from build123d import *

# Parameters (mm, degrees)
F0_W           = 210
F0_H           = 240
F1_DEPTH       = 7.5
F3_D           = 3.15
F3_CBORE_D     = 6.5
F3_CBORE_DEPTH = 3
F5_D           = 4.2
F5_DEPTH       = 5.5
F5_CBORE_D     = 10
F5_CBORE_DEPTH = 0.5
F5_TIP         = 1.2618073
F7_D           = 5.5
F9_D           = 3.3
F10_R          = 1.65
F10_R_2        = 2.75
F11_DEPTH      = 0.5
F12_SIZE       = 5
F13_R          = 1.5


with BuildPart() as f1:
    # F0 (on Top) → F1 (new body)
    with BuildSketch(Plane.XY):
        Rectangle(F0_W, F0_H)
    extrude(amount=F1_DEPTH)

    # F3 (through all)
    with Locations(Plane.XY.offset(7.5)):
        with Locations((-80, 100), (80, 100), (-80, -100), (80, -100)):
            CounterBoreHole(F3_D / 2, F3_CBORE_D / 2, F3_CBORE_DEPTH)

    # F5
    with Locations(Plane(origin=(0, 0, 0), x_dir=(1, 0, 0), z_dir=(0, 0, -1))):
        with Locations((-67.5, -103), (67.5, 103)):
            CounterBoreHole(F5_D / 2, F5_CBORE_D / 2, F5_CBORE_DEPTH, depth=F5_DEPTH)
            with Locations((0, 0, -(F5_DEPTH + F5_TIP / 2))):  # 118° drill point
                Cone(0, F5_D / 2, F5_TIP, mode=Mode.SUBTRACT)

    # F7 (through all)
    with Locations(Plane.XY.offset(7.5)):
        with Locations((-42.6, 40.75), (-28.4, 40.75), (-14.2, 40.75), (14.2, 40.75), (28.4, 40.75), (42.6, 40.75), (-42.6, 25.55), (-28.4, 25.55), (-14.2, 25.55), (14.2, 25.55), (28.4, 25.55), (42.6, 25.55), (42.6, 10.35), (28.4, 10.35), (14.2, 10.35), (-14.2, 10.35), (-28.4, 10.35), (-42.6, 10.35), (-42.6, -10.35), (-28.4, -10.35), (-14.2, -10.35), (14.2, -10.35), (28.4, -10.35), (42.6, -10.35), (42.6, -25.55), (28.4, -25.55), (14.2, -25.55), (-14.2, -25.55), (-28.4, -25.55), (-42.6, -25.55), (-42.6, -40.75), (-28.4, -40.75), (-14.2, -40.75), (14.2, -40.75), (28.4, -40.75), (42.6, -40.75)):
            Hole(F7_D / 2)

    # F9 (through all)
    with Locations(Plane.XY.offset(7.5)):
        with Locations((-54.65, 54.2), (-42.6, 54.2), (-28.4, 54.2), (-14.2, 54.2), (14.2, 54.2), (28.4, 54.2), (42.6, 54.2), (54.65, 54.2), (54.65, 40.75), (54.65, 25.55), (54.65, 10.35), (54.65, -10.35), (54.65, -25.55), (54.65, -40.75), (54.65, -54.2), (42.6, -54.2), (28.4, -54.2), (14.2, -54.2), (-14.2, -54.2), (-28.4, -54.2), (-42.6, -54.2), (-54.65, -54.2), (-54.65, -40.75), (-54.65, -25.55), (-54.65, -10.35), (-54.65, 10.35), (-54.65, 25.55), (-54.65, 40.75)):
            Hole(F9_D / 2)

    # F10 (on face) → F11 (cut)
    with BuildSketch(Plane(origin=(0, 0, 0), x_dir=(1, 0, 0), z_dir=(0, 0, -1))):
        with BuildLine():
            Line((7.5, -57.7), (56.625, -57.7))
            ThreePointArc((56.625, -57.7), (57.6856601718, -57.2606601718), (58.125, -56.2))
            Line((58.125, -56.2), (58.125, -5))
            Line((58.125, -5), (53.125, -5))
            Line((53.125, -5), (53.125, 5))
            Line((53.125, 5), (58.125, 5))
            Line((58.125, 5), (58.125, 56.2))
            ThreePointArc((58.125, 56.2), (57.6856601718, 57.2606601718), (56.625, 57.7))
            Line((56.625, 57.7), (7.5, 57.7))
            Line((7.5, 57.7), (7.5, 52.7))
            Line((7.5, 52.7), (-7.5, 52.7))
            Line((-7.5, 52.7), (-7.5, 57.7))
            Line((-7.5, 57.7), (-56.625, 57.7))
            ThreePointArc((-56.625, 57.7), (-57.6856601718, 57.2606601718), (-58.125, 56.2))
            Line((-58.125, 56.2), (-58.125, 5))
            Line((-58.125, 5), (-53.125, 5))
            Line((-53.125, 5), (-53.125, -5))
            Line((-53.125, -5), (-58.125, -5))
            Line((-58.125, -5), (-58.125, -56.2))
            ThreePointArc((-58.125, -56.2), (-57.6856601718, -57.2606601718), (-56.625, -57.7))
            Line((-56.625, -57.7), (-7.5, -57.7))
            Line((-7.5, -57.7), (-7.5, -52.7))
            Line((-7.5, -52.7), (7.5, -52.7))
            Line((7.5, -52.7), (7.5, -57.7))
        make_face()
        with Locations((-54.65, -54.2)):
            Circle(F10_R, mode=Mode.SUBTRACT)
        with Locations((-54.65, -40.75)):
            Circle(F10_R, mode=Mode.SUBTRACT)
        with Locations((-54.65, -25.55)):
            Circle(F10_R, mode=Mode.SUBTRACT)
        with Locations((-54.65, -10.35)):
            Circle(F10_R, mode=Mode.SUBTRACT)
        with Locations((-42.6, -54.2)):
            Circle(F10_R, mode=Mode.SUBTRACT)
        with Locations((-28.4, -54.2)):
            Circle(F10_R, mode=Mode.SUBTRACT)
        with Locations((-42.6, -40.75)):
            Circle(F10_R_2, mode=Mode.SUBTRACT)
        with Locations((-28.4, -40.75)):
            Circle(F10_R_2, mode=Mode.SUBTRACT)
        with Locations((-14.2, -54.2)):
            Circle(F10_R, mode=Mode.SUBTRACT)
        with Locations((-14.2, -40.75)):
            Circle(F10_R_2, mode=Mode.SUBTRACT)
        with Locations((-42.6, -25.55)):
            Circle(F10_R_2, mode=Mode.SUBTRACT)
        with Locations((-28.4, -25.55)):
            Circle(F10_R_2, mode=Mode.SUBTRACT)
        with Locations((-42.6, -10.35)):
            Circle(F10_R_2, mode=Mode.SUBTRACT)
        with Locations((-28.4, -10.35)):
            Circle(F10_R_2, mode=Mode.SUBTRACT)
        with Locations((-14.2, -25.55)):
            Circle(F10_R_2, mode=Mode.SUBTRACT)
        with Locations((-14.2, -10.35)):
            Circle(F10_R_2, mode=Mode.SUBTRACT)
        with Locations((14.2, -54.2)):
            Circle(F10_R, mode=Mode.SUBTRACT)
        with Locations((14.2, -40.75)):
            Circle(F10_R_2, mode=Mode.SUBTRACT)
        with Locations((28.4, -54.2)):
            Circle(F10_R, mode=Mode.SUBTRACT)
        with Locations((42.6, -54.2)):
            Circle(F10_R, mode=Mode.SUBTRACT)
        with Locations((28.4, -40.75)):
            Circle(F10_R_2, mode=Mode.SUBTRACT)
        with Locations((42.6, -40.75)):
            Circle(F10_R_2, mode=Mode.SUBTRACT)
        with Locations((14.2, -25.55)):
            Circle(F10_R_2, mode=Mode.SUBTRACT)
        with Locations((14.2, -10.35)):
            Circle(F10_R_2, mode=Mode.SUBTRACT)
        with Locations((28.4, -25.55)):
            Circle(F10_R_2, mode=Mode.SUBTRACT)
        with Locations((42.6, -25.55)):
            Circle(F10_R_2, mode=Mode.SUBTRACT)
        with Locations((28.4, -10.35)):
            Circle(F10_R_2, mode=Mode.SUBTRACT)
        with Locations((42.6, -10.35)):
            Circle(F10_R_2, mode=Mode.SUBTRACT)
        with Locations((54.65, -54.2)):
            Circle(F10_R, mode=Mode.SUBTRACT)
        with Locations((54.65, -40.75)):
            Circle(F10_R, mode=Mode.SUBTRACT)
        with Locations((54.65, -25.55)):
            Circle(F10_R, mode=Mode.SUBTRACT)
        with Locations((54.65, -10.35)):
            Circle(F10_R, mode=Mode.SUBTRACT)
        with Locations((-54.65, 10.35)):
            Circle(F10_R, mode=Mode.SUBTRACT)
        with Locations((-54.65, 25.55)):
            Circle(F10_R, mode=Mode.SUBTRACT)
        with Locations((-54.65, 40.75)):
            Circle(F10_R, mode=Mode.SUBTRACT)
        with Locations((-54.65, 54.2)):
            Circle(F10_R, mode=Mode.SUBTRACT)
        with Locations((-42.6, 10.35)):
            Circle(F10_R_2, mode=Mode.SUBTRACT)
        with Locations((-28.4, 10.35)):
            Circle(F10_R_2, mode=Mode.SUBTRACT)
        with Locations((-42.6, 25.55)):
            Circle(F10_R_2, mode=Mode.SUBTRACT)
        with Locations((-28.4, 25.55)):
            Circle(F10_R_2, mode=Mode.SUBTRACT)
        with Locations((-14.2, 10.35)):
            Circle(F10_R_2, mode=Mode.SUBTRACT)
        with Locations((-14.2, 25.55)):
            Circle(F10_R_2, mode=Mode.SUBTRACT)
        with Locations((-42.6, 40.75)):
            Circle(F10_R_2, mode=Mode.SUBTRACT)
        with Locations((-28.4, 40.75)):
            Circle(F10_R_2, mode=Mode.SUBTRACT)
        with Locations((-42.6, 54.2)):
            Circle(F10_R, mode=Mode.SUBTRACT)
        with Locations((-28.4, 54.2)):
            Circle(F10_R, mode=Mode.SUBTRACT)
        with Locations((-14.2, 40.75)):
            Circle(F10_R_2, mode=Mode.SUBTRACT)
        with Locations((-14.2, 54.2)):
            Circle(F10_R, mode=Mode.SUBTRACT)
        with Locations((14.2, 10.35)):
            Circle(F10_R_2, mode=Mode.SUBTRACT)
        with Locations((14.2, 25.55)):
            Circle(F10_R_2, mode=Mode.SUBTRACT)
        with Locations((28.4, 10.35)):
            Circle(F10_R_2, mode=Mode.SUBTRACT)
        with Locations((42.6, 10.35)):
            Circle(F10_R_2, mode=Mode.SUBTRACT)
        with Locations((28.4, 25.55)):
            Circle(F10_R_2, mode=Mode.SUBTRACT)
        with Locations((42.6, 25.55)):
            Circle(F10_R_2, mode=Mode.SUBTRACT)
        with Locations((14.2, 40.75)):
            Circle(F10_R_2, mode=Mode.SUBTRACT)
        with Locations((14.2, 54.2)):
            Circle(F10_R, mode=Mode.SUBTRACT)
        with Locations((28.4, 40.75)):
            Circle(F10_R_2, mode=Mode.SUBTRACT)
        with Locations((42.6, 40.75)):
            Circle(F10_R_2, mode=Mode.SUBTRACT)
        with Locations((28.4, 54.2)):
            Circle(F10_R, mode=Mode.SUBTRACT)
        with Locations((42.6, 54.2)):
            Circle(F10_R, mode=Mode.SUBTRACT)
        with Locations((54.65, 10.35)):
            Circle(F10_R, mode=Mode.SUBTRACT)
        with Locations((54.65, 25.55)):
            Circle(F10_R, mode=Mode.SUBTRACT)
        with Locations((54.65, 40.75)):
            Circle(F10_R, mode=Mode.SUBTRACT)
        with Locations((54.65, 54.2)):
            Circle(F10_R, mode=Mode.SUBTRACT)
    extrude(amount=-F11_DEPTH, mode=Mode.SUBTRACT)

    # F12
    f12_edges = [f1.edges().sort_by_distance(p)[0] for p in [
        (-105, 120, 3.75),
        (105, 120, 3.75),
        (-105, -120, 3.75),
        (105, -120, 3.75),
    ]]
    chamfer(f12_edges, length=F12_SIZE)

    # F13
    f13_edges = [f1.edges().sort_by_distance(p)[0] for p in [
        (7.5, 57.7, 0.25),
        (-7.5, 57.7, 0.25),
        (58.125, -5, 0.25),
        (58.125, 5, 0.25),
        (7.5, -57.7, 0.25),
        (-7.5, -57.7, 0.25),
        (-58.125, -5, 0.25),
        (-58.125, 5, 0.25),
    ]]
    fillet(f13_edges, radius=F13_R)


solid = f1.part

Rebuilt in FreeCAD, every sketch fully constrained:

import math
import FreeCAD as App
import Part
import Sketcher
Q = App.Units.Quantity


def edges_at(feature, points):
    """Names of the edges that pass closest to the given points."""
    edges = feature.Shape.Edges
    near = lambda p: min(range(len(edges)), key=lambda i: edges[i].distToShape(Part.Vertex(*p))[0])
    return sorted({f"Edge{near(p) + 1}" for p in points})

doc = App.newDocument("Part")
body = doc.addObject("PartDesign::Body", "Body")

# Sketch on XY plane
sketch1 = body.newObject("Sketcher::SketchObject", "Sketch")
sketch1.AttachmentSupport = (doc.getObject("XY_Plane"), [""])
sketch1.MapMode = "FlatFace"
sketch1.addGeometry([
    Part.LineSegment(App.Vector(-105, 120, 0), App.Vector(-105, -120, 0)),
    Part.LineSegment(App.Vector(-105, -120, 0), App.Vector(105, -120, 0)),
    Part.LineSegment(App.Vector(105, -120, 0), App.Vector(105, 120, 0)),
    Part.LineSegment(App.Vector(105, 120, 0), App.Vector(-105, 120, 0)),
], False)
sketch1.addConstraint([
    Sketcher.Constraint("Coincident", 0, 2, 1, 1),
    Sketcher.Constraint("Coincident", 1, 2, 2, 1),
    Sketcher.Constraint("Coincident", 2, 2, 3, 1),
    Sketcher.Constraint("Coincident", 3, 2, 0, 1),
    Sketcher.Constraint("Vertical", 0),
    Sketcher.Constraint("Horizontal", 1),
    Sketcher.Constraint("Vertical", 2),
    Sketcher.Constraint("Horizontal", 3),
    Sketcher.Constraint("Symmetric", 0, 2, 2, 2, -1, 1),
    Sketcher.Constraint("DistanceX", 1, 1, 1, 2, Q("210 mm")),
    Sketcher.Constraint("DistanceY", 0, 2, 0, 1, Q("240 mm")),
])
pad1 = body.newObject("PartDesign::Pad", "Pad")
pad1.Profile = sketch1
pad1.Length = 7.5

# Sketch on XY plane
sketch2 = body.newObject("Sketcher::SketchObject", "Sketch001")
sketch2.AttachmentSupport = (doc.getObject("XY_Plane"), [""])
sketch2.MapMode = "FlatFace"
sketch2.AttachmentOffset = App.Placement(App.Vector(0, 0, 7.5), App.Rotation())
sketch2.addGeometry([
    Part.Circle(App.Vector(-80, 100, 0), App.Vector(0, 0, 1), 1.6),
    Part.Circle(App.Vector(80, 100, 0), App.Vector(0, 0, 1), 1.6),
    Part.Circle(App.Vector(-80, -100, 0), App.Vector(0, 0, 1), 1.6),
    Part.Circle(App.Vector(80, -100, 0), App.Vector(0, 0, 1), 1.6),
], False)
sketch2.addConstraint([
    Sketcher.Constraint("Equal", 0, 1),
    Sketcher.Constraint("Equal", 1, 2),
    Sketcher.Constraint("Equal", 2, 3),
    Sketcher.Constraint("Symmetric", 1, 3, 2, 3, -1, 1),
    Sketcher.Constraint("Symmetric", 0, 3, 3, 3, -1, 1),
    Sketcher.Constraint("Symmetric", 0, 3, 1, 3, -2),
    Sketcher.Constraint("Diameter", 0, Q("3.15 mm")),
    Sketcher.Constraint("DistanceX", 0, 3, -1, 1, Q("80 mm")),
    Sketcher.Constraint("DistanceY", -1, 1, 0, 3, Q("100 mm")),
])
doc.recompute()
hole = body.newObject("PartDesign::Hole", "Hole")
hole.Profile = sketch2
hole.ThreadType = "None"
hole.Diameter = 3.15
hole.DepthType = "ThroughAll"
hole.HoleCutType = "Counterbore"
hole.HoleCutDiameter = 6.5
hole.HoleCutDepth = 3

# Sketch on XY plane
sketch3 = body.newObject("Sketcher::SketchObject", "Sketch002")
sketch3.AttachmentSupport = (doc.getObject("XY_Plane"), [""])
sketch3.MapMode = "FlatFace"
sketch3.addGeometry([
    Part.Circle(App.Vector(-67.5, 103, 0), App.Vector(0, 0, 1), 2.1),
    Part.Circle(App.Vector(67.5, -103, 0), App.Vector(0, 0, 1), 2.1),
], False)
sketch3.addConstraint([
    Sketcher.Constraint("Equal", 0, 1),
    Sketcher.Constraint("Symmetric", 0, 3, 1, 3, -1, 1),
    Sketcher.Constraint("Diameter", 0, Q("4.2 mm")),
    Sketcher.Constraint("DistanceY", -1, 1, 0, 3, Q("103 mm")),
    Sketcher.Constraint("DistanceX", 0, 3, 1, 3, Q("135 mm")),
])
doc.recompute()
hole2 = body.newObject("PartDesign::Hole", "Hole001")
hole2.Profile = sketch3
hole2.ThreadType = "None"
hole2.Diameter = 4.2
hole2.DepthType = "Dimension"
hole2.Depth = 5.5
hole2.DrillPoint = "Angled"
hole2.DrillPointAngle = 118
hole2.HoleCutType = "Counterbore"
hole2.HoleCutDiameter = 10
hole2.HoleCutDepth = 0.5
hole2.Reversed = True

# Sketch on XY plane
sketch4 = body.newObject("Sketcher::SketchObject", "Sketch003")
sketch4.AttachmentSupport = (doc.getObject("XY_Plane"), [""])
sketch4.MapMode = "FlatFace"
sketch4.AttachmentOffset = App.Placement(App.Vector(0, 0, 7.5), App.Rotation())
sketch4.addGeometry([
    Part.Circle(App.Vector(-42.6, 40.8, 0), App.Vector(0, 0, 1), 2.8),  # 0
    Part.Circle(App.Vector(-28.4, 40.8, 0), App.Vector(0, 0, 1), 2.8),  # 1
    Part.Circle(App.Vector(-14.2, 40.8, 0), App.Vector(0, 0, 1), 2.8),  # 2
    Part.Circle(App.Vector(14.2, 40.8, 0), App.Vector(0, 0, 1), 2.8),  # 3
    Part.Circle(App.Vector(28.4, 40.8, 0), App.Vector(0, 0, 1), 2.8),  # 4
    Part.Circle(App.Vector(42.6, 40.8, 0), App.Vector(0, 0, 1), 2.8),  # 5
    Part.Circle(App.Vector(-42.6, 25.6, 0), App.Vector(0, 0, 1), 2.8),  # 6
    Part.Circle(App.Vector(-28.4, 25.6, 0), App.Vector(0, 0, 1), 2.8),  # 7
    Part.Circle(App.Vector(-14.2, 25.6, 0), App.Vector(0, 0, 1), 2.8),  # 8
    Part.Circle(App.Vector(14.2, 25.6, 0), App.Vector(0, 0, 1), 2.8),  # 9
    Part.Circle(App.Vector(28.4, 25.6, 0), App.Vector(0, 0, 1), 2.8),  # 10
    Part.Circle(App.Vector(42.6, 25.6, 0), App.Vector(0, 0, 1), 2.8),  # 11
    Part.Circle(App.Vector(42.6, 10.3, 0), App.Vector(0, 0, 1), 2.8),  # 12
    Part.Circle(App.Vector(28.4, 10.3, 0), App.Vector(0, 0, 1), 2.8),  # 13
    Part.Circle(App.Vector(14.2, 10.3, 0), App.Vector(0, 0, 1), 2.8),  # 14
    Part.Circle(App.Vector(-14.2, 10.3, 0), App.Vector(0, 0, 1), 2.8),  # 15
    Part.Circle(App.Vector(-28.4, 10.3, 0), App.Vector(0, 0, 1), 2.8),  # 16
    Part.Circle(App.Vector(-42.6, 10.3, 0), App.Vector(0, 0, 1), 2.8),  # 17
    Part.Circle(App.Vector(-42.6, -10.3, 0), App.Vector(0, 0, 1), 2.8),  # 18
    Part.Circle(App.Vector(-28.4, -10.3, 0), App.Vector(0, 0, 1), 2.8),  # 19
    Part.Circle(App.Vector(-14.2, -10.3, 0), App.Vector(0, 0, 1), 2.8),  # 20
    Part.Circle(App.Vector(14.2, -10.3, 0), App.Vector(0, 0, 1), 2.8),  # 21
    Part.Circle(App.Vector(28.4, -10.3, 0), App.Vector(0, 0, 1), 2.8),  # 22
    Part.Circle(App.Vector(42.6, -10.3, 0), App.Vector(0, 0, 1), 2.8),  # 23
    Part.Circle(App.Vector(42.6, -25.6, 0), App.Vector(0, 0, 1), 2.8),  # 24
    Part.Circle(App.Vector(28.4, -25.6, 0), App.Vector(0, 0, 1), 2.8),  # 25
    Part.Circle(App.Vector(14.2, -25.6, 0), App.Vector(0, 0, 1), 2.8),  # 26
    Part.Circle(App.Vector(-14.2, -25.6, 0), App.Vector(0, 0, 1), 2.8),  # 27
    Part.Circle(App.Vector(-28.4, -25.6, 0), App.Vector(0, 0, 1), 2.8),  # 28
    Part.Circle(App.Vector(-42.6, -25.6, 0), App.Vector(0, 0, 1), 2.8),  # 29
    Part.Circle(App.Vector(-42.6, -40.8, 0), App.Vector(0, 0, 1), 2.8),  # 30
    Part.Circle(App.Vector(-28.4, -40.8, 0), App.Vector(0, 0, 1), 2.8),  # 31
    Part.Circle(App.Vector(-14.2, -40.8, 0), App.Vector(0, 0, 1), 2.8),  # 32
    Part.Circle(App.Vector(14.2, -40.8, 0), App.Vector(0, 0, 1), 2.8),  # 33
    Part.Circle(App.Vector(28.4, -40.8, 0), App.Vector(0, 0, 1), 2.8),  # 34
    Part.Circle(App.Vector(42.6, -40.8, 0), App.Vector(0, 0, 1), 2.8),  # 35
], False)
sketch4.addConstraint([
    Sketcher.Constraint("Equal", 0, 1),
    Sketcher.Constraint("Equal", 1, 2),
    Sketcher.Constraint("Equal", 2, 3),
    Sketcher.Constraint("Equal", 3, 4),
    Sketcher.Constraint("Equal", 4, 5),
    Sketcher.Constraint("Equal", 5, 6),
    Sketcher.Constraint("Equal", 6, 7),
    Sketcher.Constraint("Equal", 7, 8),
    Sketcher.Constraint("Equal", 8, 9),
    Sketcher.Constraint("Equal", 9, 10),
    Sketcher.Constraint("Equal", 10, 11),
    Sketcher.Constraint("Equal", 11, 12),
    Sketcher.Constraint("Equal", 12, 13),
    Sketcher.Constraint("Equal", 13, 14),
    Sketcher.Constraint("Equal", 14, 15),
    Sketcher.Constraint("Equal", 15, 16),
    Sketcher.Constraint("Equal", 16, 17),
    Sketcher.Constraint("Equal", 17, 18),
    Sketcher.Constraint("Equal", 18, 19),
    Sketcher.Constraint("Equal", 19, 20),
    Sketcher.Constraint("Equal", 20, 21),
    Sketcher.Constraint("Equal", 21, 22),
    Sketcher.Constraint("Equal", 22, 23),
    Sketcher.Constraint("Equal", 23, 24),
    Sketcher.Constraint("Equal", 24, 25),
    Sketcher.Constraint("Equal", 25, 26),
    Sketcher.Constraint("Equal", 26, 27),
    Sketcher.Constraint("Equal", 27, 28),
    Sketcher.Constraint("Equal", 28, 29),
    Sketcher.Constraint("Equal", 29, 30),
    Sketcher.Constraint("Equal", 30, 31),
    Sketcher.Constraint("Equal", 31, 32),
    Sketcher.Constraint("Equal", 32, 33),
    Sketcher.Constraint("Equal", 33, 34),
    Sketcher.Constraint("Equal", 34, 35),
    Sketcher.Constraint("Symmetric", 12, 3, 18, 3, -1, 1),
    Sketcher.Constraint("Symmetric", 13, 3, 19, 3, -1, 1),
    Sketcher.Constraint("Symmetric", 14, 3, 20, 3, -1, 1),
    Sketcher.Constraint("Symmetric", 15, 3, 21, 3, -1, 1),
    Sketcher.Constraint("Symmetric", 16, 3, 22, 3, -1, 1),
    Sketcher.Constraint("Symmetric", 17, 3, 23, 3, -1, 1),
    Sketcher.Constraint("Symmetric", 6, 3, 24, 3, -1, 1),
    Sketcher.Constraint("Symmetric", 7, 3, 25, 3, -1, 1),
    Sketcher.Constraint("Symmetric", 8, 3, 26, 3, -1, 1),
    Sketcher.Constraint("Symmetric", 9, 3, 27, 3, -1, 1),
    Sketcher.Constraint("Symmetric", 10, 3, 28, 3, -1, 1),
    Sketcher.Constraint("Symmetric", 11, 3, 29, 3, -1, 1),
    Sketcher.Constraint("Symmetric", 5, 3, 30, 3, -1, 1),
    Sketcher.Constraint("Symmetric", 4, 3, 31, 3, -1, 1),
    Sketcher.Constraint("Symmetric", 3, 3, 32, 3, -1, 1),
    Sketcher.Constraint("Symmetric", 2, 3, 33, 3, -1, 1),
    Sketcher.Constraint("Symmetric", 1, 3, 34, 3, -1, 1),
    Sketcher.Constraint("Symmetric", 0, 3, 35, 3, -1, 1),
    Sketcher.Constraint("Symmetric", 2, 3, 3, 3, -2),
    Sketcher.Constraint("Symmetric", 1, 3, 4, 3, -2),
    Sketcher.Constraint("Symmetric", 0, 3, 5, 3, -2),
    Sketcher.Constraint("Symmetric", 8, 3, 9, 3, -2),
    Sketcher.Constraint("Symmetric", 7, 3, 10, 3, -2),
    Sketcher.Constraint("Symmetric", 6, 3, 11, 3, -2),
    Sketcher.Constraint("Symmetric", 14, 3, 15, 3, -2),
    Sketcher.Constraint("Symmetric", 13, 3, 16, 3, -2),
    Sketcher.Constraint("Symmetric", 12, 3, 17, 3, -2),
    Sketcher.Constraint("Horizontal", 0, 3, 1, 3),
    Sketcher.Constraint("Horizontal", 1, 3, 2, 3),
    Sketcher.Constraint("Horizontal", 6, 3, 7, 3),
    Sketcher.Constraint("Horizontal", 7, 3, 8, 3),
    Sketcher.Constraint("Horizontal", 12, 3, 13, 3),
    Sketcher.Constraint("Horizontal", 13, 3, 14, 3),
    Sketcher.Constraint("Vertical", 0, 3, 6, 3),
    Sketcher.Constraint("Vertical", 1, 3, 7, 3),
    Sketcher.Constraint("Vertical", 2, 3, 8, 3),
    Sketcher.Constraint("Vertical", 11, 3, 12, 3),
    Sketcher.Constraint("Vertical", 10, 3, 13, 3),
    Sketcher.Constraint("Vertical", 9, 3, 14, 3),
    Sketcher.Constraint("Diameter", 0, Q("5.5 mm")),
    Sketcher.Constraint("DistanceX", 0, 3, 4, 3, Q("71 mm")),
    Sketcher.Constraint("DistanceX", 0, 3, -1, 1, Q("42.6 mm")),
    Sketcher.Constraint("DistanceX", 2, 3, -1, 1, Q("14.2 mm")),
    Sketcher.Constraint("DistanceY", 6, 3, 0, 3, Q("15.2 mm")),
    Sketcher.Constraint("DistanceY", 12, 3, 11, 3, Q("15.2 mm")),
    Sketcher.Constraint("DistanceY", 18, 3, 17, 3, Q("20.7 mm")),
])
doc.recompute()
hole3 = body.newObject("PartDesign::Hole", "Hole002")
hole3.Profile = sketch4
hole3.ThreadType = "None"
hole3.Diameter = 5.5
hole3.DepthType = "ThroughAll"

# Sketch on XY plane
sketch5 = body.newObject("Sketcher::SketchObject", "Sketch004")
sketch5.AttachmentSupport = (doc.getObject("XY_Plane"), [""])
sketch5.MapMode = "FlatFace"
sketch5.AttachmentOffset = App.Placement(App.Vector(0, 0, 7.5), App.Rotation())
sketch5.addGeometry([
    Part.Circle(App.Vector(-54.6, 54.2, 0), App.Vector(0, 0, 1), 1.6),  # 0
    Part.Circle(App.Vector(-42.6, 54.2, 0), App.Vector(0, 0, 1), 1.6),  # 1
    Part.Circle(App.Vector(-28.4, 54.2, 0), App.Vector(0, 0, 1), 1.6),  # 2
    Part.Circle(App.Vector(-14.2, 54.2, 0), App.Vector(0, 0, 1), 1.6),  # 3
    Part.Circle(App.Vector(14.2, 54.2, 0), App.Vector(0, 0, 1), 1.6),  # 4
    Part.Circle(App.Vector(28.4, 54.2, 0), App.Vector(0, 0, 1), 1.6),  # 5
    Part.Circle(App.Vector(42.6, 54.2, 0), App.Vector(0, 0, 1), 1.6),  # 6
    Part.Circle(App.Vector(54.6, 54.2, 0), App.Vector(0, 0, 1), 1.6),  # 7
    Part.Circle(App.Vector(54.6, 40.8, 0), App.Vector(0, 0, 1), 1.6),  # 8
    Part.Circle(App.Vector(54.6, 25.6, 0), App.Vector(0, 0, 1), 1.6),  # 9
    Part.Circle(App.Vector(54.6, 10.3, 0), App.Vector(0, 0, 1), 1.6),  # 10
    Part.Circle(App.Vector(54.6, -10.3, 0), App.Vector(0, 0, 1), 1.6),  # 11
    Part.Circle(App.Vector(54.6, -25.6, 0), App.Vector(0, 0, 1), 1.6),  # 12
    Part.Circle(App.Vector(54.6, -40.8, 0), App.Vector(0, 0, 1), 1.6),  # 13
    Part.Circle(App.Vector(54.6, -54.2, 0), App.Vector(0, 0, 1), 1.6),  # 14
    Part.Circle(App.Vector(42.6, -54.2, 0), App.Vector(0, 0, 1), 1.6),  # 15
    Part.Circle(App.Vector(28.4, -54.2, 0), App.Vector(0, 0, 1), 1.6),  # 16
    Part.Circle(App.Vector(14.2, -54.2, 0), App.Vector(0, 0, 1), 1.6),  # 17
    Part.Circle(App.Vector(-14.2, -54.2, 0), App.Vector(0, 0, 1), 1.6),  # 18
    Part.Circle(App.Vector(-28.4, -54.2, 0), App.Vector(0, 0, 1), 1.6),  # 19
    Part.Circle(App.Vector(-42.6, -54.2, 0), App.Vector(0, 0, 1), 1.6),  # 20
    Part.Circle(App.Vector(-54.6, -54.2, 0), App.Vector(0, 0, 1), 1.6),  # 21
    Part.Circle(App.Vector(-54.6, -40.8, 0), App.Vector(0, 0, 1), 1.6),  # 22
    Part.Circle(App.Vector(-54.6, -25.6, 0), App.Vector(0, 0, 1), 1.6),  # 23
    Part.Circle(App.Vector(-54.6, -10.3, 0), App.Vector(0, 0, 1), 1.6),  # 24
    Part.Circle(App.Vector(-54.6, 10.3, 0), App.Vector(0, 0, 1), 1.6),  # 25
    Part.Circle(App.Vector(-54.6, 25.6, 0), App.Vector(0, 0, 1), 1.6),  # 26
    Part.Circle(App.Vector(-54.6, 40.8, 0), App.Vector(0, 0, 1), 1.6),  # 27
], False)
sketch5.addConstraint([
    Sketcher.Constraint("Equal", 0, 1),
    Sketcher.Constraint("Equal", 1, 2),
    Sketcher.Constraint("Equal", 2, 3),
    Sketcher.Constraint("Equal", 3, 4),
    Sketcher.Constraint("Equal", 4, 5),
    Sketcher.Constraint("Equal", 5, 6),
    Sketcher.Constraint("Equal", 6, 7),
    Sketcher.Constraint("Equal", 7, 8),
    Sketcher.Constraint("Equal", 8, 9),
    Sketcher.Constraint("Equal", 9, 10),
    Sketcher.Constraint("Equal", 10, 11),
    Sketcher.Constraint("Equal", 11, 12),
    Sketcher.Constraint("Equal", 12, 13),
    Sketcher.Constraint("Equal", 13, 14),
    Sketcher.Constraint("Equal", 14, 15),
    Sketcher.Constraint("Equal", 15, 16),
    Sketcher.Constraint("Equal", 16, 17),
    Sketcher.Constraint("Equal", 17, 18),
    Sketcher.Constraint("Equal", 18, 19),
    Sketcher.Constraint("Equal", 19, 20),
    Sketcher.Constraint("Equal", 20, 21),
    Sketcher.Constraint("Equal", 21, 22),
    Sketcher.Constraint("Equal", 22, 23),
    Sketcher.Constraint("Equal", 23, 24),
    Sketcher.Constraint("Equal", 24, 25),
    Sketcher.Constraint("Equal", 25, 26),
    Sketcher.Constraint("Equal", 26, 27),
    Sketcher.Constraint("Symmetric", 0, 3, 14, 3, -1, 1),
    Sketcher.Constraint("Symmetric", 1, 3, 15, 3, -1, 1),
    Sketcher.Constraint("Symmetric", 2, 3, 16, 3, -1, 1),
    Sketcher.Constraint("Symmetric", 3, 3, 17, 3, -1, 1),
    Sketcher.Constraint("Symmetric", 4, 3, 18, 3, -1, 1),
    Sketcher.Constraint("Symmetric", 5, 3, 19, 3, -1, 1),
    Sketcher.Constraint("Symmetric", 6, 3, 20, 3, -1, 1),
    Sketcher.Constraint("Symmetric", 7, 3, 21, 3, -1, 1),
    Sketcher.Constraint("Symmetric", 8, 3, 22, 3, -1, 1),
    Sketcher.Constraint("Symmetric", 9, 3, 23, 3, -1, 1),
    Sketcher.Constraint("Symmetric", 10, 3, 24, 3, -1, 1),
    Sketcher.Constraint("Symmetric", 11, 3, 25, 3, -1, 1),
    Sketcher.Constraint("Symmetric", 12, 3, 26, 3, -1, 1),
    Sketcher.Constraint("Symmetric", 13, 3, 27, 3, -1, 1),
    Sketcher.Constraint("Symmetric", 3, 3, 4, 3, -2),
    Sketcher.Constraint("Symmetric", 2, 3, 5, 3, -2),
    Sketcher.Constraint("Symmetric", 1, 3, 6, 3, -2),
    Sketcher.Constraint("Symmetric", 0, 3, 7, 3, -2),
    Sketcher.Constraint("Symmetric", 13, 3, 22, 3, -2),
    Sketcher.Constraint("Symmetric", 12, 3, 23, 3, -2),
    Sketcher.Constraint("Symmetric", 11, 3, 24, 3, -2),
    Sketcher.Constraint("Horizontal", 0, 3, 1, 3),
    Sketcher.Constraint("Horizontal", 1, 3, 2, 3),
    Sketcher.Constraint("Horizontal", 2, 3, 3, 3),
    Sketcher.Constraint("Vertical", 7, 3, 8, 3),
    Sketcher.Constraint("Vertical", 8, 3, 9, 3),
    Sketcher.Constraint("Vertical", 9, 3, 10, 3),
    Sketcher.Constraint("Diameter", 0, Q("3.3 mm")),
    Sketcher.Constraint("DistanceX", 1, 3, 5, 3, Q("71 mm")),
    Sketcher.Constraint("DistanceY", -1, 1, 0, 3, Q("54.2 mm")),
    Sketcher.Constraint("DistanceX", 1, 3, -1, 1, Q("42.6 mm")),
    Sketcher.Constraint("DistanceX", 3, 3, -1, 1, Q("14.2 mm")),
    Sketcher.Constraint("DistanceY", 9, 3, 8, 3, Q("15.2 mm")),
    Sketcher.Constraint("DistanceY", 10, 3, 9, 3, Q("15.2 mm")),
    Sketcher.Constraint("DistanceY", 11, 3, 10, 3, Q("20.7 mm")),
    Sketcher.Constraint("DistanceX", 0, 3, -1, 1, Q("54.65 mm")),
])
doc.recompute()
hole4 = body.newObject("PartDesign::Hole", "Hole003")
hole4.Profile = sketch5
hole4.ThreadType = "None"
hole4.Diameter = 3.3
hole4.DepthType = "ThroughAll"

# Sketch on XY plane
sketch6 = body.newObject("Sketcher::SketchObject", "Sketch005")
sketch6.AttachmentSupport = (doc.getObject("XY_Plane"), [""])
sketch6.MapMode = "FlatFace"
sketch6.addGeometry([
    Part.LineSegment(App.Vector(7.5, 57.7, 0), App.Vector(56.6, 57.7, 0)),  # 0
    Part.ArcOfCircle(Part.Circle(App.Vector(56.6, 56.2, 0), App.Vector(0, 0, 1), 1.5), math.radians(0), math.radians(90)),  # 1
    Part.LineSegment(App.Vector(58.1, 56.2, 0), App.Vector(58.1, 5, 0)),  # 2
    Part.LineSegment(App.Vector(58.1, 5, 0), App.Vector(53.1, 5, 0)),  # 3
    Part.LineSegment(App.Vector(53.1, 5, 0), App.Vector(53.1, -5, 0)),  # 4
    Part.LineSegment(App.Vector(53.1, -5, 0), App.Vector(58.1, -5, 0)),  # 5
    Part.LineSegment(App.Vector(58.1, -5, 0), App.Vector(58.1, -56.2, 0)),  # 6
    Part.ArcOfCircle(Part.Circle(App.Vector(56.6, -56.2, 0), App.Vector(0, 0, 1), 1.5), math.radians(-90), math.radians(0)),  # 7
    Part.LineSegment(App.Vector(56.6, -57.7, 0), App.Vector(7.5, -57.7, 0)),  # 8
    Part.LineSegment(App.Vector(7.5, -57.7, 0), App.Vector(7.5, -52.7, 0)),  # 9
    Part.LineSegment(App.Vector(7.5, -52.7, 0), App.Vector(-7.5, -52.7, 0)),  # 10
    Part.LineSegment(App.Vector(-7.5, -52.7, 0), App.Vector(-7.5, -57.7, 0)),  # 11
    Part.LineSegment(App.Vector(-7.5, -57.7, 0), App.Vector(-56.6, -57.7, 0)),  # 12
    Part.ArcOfCircle(Part.Circle(App.Vector(-56.6, -56.2, 0), App.Vector(0, 0, 1), 1.5), math.radians(180), math.radians(270)),  # 13
    Part.LineSegment(App.Vector(-58.1, -56.2, 0), App.Vector(-58.1, -5, 0)),  # 14
    Part.LineSegment(App.Vector(-58.1, -5, 0), App.Vector(-53.1, -5, 0)),  # 15
    Part.LineSegment(App.Vector(-53.1, -5, 0), App.Vector(-53.1, 5, 0)),  # 16
    Part.LineSegment(App.Vector(-53.1, 5, 0), App.Vector(-58.1, 5, 0)),  # 17
    Part.LineSegment(App.Vector(-58.1, 5, 0), App.Vector(-58.1, 56.2, 0)),  # 18
    Part.ArcOfCircle(Part.Circle(App.Vector(-56.6, 56.2, 0), App.Vector(0, 0, 1), 1.5), math.radians(90), math.radians(180)),  # 19
    Part.LineSegment(App.Vector(-56.6, 57.7, 0), App.Vector(-7.5, 57.7, 0)),  # 20
    Part.LineSegment(App.Vector(-7.5, 57.7, 0), App.Vector(-7.5, 52.7, 0)),  # 21
    Part.LineSegment(App.Vector(-7.5, 52.7, 0), App.Vector(7.5, 52.7, 0)),  # 22
    Part.LineSegment(App.Vector(7.5, 52.7, 0), App.Vector(7.5, 57.7, 0)),  # 23
    Part.Circle(App.Vector(-54.6, 54.2, 0), App.Vector(0, 0, 1), 1.6),  # 24
    Part.Circle(App.Vector(-42.6, 54.2, 0), App.Vector(0, 0, 1), 1.6),  # 25
    Part.Circle(App.Vector(-28.4, 54.2, 0), App.Vector(0, 0, 1), 1.6),  # 26
    Part.Circle(App.Vector(-54.6, 40.8, 0), App.Vector(0, 0, 1), 1.6),  # 27
    Part.Circle(App.Vector(-42.6, 40.8, 0), App.Vector(0, 0, 1), 2.8),  # 28
    Part.Circle(App.Vector(-28.4, 40.8, 0), App.Vector(0, 0, 1), 2.8),  # 29
    Part.Circle(App.Vector(-14.2, 54.2, 0), App.Vector(0, 0, 1), 1.6),  # 30
    Part.Circle(App.Vector(-14.2, 40.8, 0), App.Vector(0, 0, 1), 2.8),  # 31
    Part.Circle(App.Vector(-54.6, 25.6, 0), App.Vector(0, 0, 1), 1.6),  # 32
    Part.Circle(App.Vector(-42.6, 25.6, 0), App.Vector(0, 0, 1), 2.8),  # 33
    Part.Circle(App.Vector(-28.4, 25.6, 0), App.Vector(0, 0, 1), 2.8),  # 34
    Part.Circle(App.Vector(-54.6, 10.3, 0), App.Vector(0, 0, 1), 1.6),  # 35
    Part.Circle(App.Vector(-42.6, 10.3, 0), App.Vector(0, 0, 1), 2.8),  # 36
    Part.Circle(App.Vector(-28.4, 10.3, 0), App.Vector(0, 0, 1), 2.8),  # 37
    Part.Circle(App.Vector(-14.2, 25.6, 0), App.Vector(0, 0, 1), 2.8),  # 38
    Part.Circle(App.Vector(-14.2, 10.3, 0), App.Vector(0, 0, 1), 2.8),  # 39
    Part.Circle(App.Vector(14.2, 54.2, 0), App.Vector(0, 0, 1), 1.6),  # 40
    Part.Circle(App.Vector(14.2, 40.8, 0), App.Vector(0, 0, 1), 2.8),  # 41
    Part.Circle(App.Vector(28.4, 54.2, 0), App.Vector(0, 0, 1), 1.6),  # 42
    Part.Circle(App.Vector(42.6, 54.2, 0), App.Vector(0, 0, 1), 1.6),  # 43
    Part.Circle(App.Vector(54.6, 54.2, 0), App.Vector(0, 0, 1), 1.6),  # 44
    Part.Circle(App.Vector(28.4, 40.8, 0), App.Vector(0, 0, 1), 2.8),  # 45
    Part.Circle(App.Vector(42.6, 40.8, 0), App.Vector(0, 0, 1), 2.8),  # 46
    Part.Circle(App.Vector(54.6, 40.8, 0), App.Vector(0, 0, 1), 1.6),  # 47
    Part.Circle(App.Vector(14.2, 25.6, 0), App.Vector(0, 0, 1), 2.8),  # 48
    Part.Circle(App.Vector(14.2, 10.3, 0), App.Vector(0, 0, 1), 2.8),  # 49
    Part.Circle(App.Vector(28.4, 25.6, 0), App.Vector(0, 0, 1), 2.8),  # 50
    Part.Circle(App.Vector(42.6, 25.6, 0), App.Vector(0, 0, 1), 2.8),  # 51
    Part.Circle(App.Vector(54.6, 25.6, 0), App.Vector(0, 0, 1), 1.6),  # 52
    Part.Circle(App.Vector(28.4, 10.3, 0), App.Vector(0, 0, 1), 2.8),  # 53
    Part.Circle(App.Vector(42.6, 10.3, 0), App.Vector(0, 0, 1), 2.8),  # 54
    Part.Circle(App.Vector(54.6, 10.3, 0), App.Vector(0, 0, 1), 1.6),  # 55
    Part.Circle(App.Vector(-54.6, -10.3, 0), App.Vector(0, 0, 1), 1.6),  # 56
    Part.Circle(App.Vector(-42.6, -10.3, 0), App.Vector(0, 0, 1), 2.8),  # 57
    Part.Circle(App.Vector(-28.4, -10.3, 0), App.Vector(0, 0, 1), 2.8),  # 58
    Part.Circle(App.Vector(-54.6, -25.6, 0), App.Vector(0, 0, 1), 1.6),  # 59
    Part.Circle(App.Vector(-42.6, -25.6, 0), App.Vector(0, 0, 1), 2.8),  # 60
    Part.Circle(App.Vector(-28.4, -25.6, 0), App.Vector(0, 0, 1), 2.8),  # 61
    Part.Circle(App.Vector(-14.2, -10.3, 0), App.Vector(0, 0, 1), 2.8),  # 62
    Part.Circle(App.Vector(-14.2, -25.6, 0), App.Vector(0, 0, 1), 2.8),  # 63
    Part.Circle(App.Vector(-54.6, -40.8, 0), App.Vector(0, 0, 1), 1.6),  # 64
    Part.Circle(App.Vector(-42.6, -40.8, 0), App.Vector(0, 0, 1), 2.8),  # 65
    Part.Circle(App.Vector(-28.4, -40.8, 0), App.Vector(0, 0, 1), 2.8),  # 66
    Part.Circle(App.Vector(-54.6, -54.2, 0), App.Vector(0, 0, 1), 1.6),  # 67
    Part.Circle(App.Vector(-42.6, -54.2, 0), App.Vector(0, 0, 1), 1.6),  # 68
    Part.Circle(App.Vector(-28.4, -54.2, 0), App.Vector(0, 0, 1), 1.6),  # 69
    Part.Circle(App.Vector(-14.2, -40.8, 0), App.Vector(0, 0, 1), 2.8),  # 70
    Part.Circle(App.Vector(-14.2, -54.2, 0), App.Vector(0, 0, 1), 1.6),  # 71
    Part.Circle(App.Vector(14.2, -10.3, 0), App.Vector(0, 0, 1), 2.8),  # 72
    Part.Circle(App.Vector(14.2, -25.6, 0), App.Vector(0, 0, 1), 2.8),  # 73
    Part.Circle(App.Vector(28.4, -10.3, 0), App.Vector(0, 0, 1), 2.8),  # 74
    Part.Circle(App.Vector(42.6, -10.3, 0), App.Vector(0, 0, 1), 2.8),  # 75
    Part.Circle(App.Vector(54.6, -10.3, 0), App.Vector(0, 0, 1), 1.6),  # 76
    Part.Circle(App.Vector(28.4, -25.6, 0), App.Vector(0, 0, 1), 2.8),  # 77
    Part.Circle(App.Vector(42.6, -25.6, 0), App.Vector(0, 0, 1), 2.8),  # 78
    Part.Circle(App.Vector(54.6, -25.6, 0), App.Vector(0, 0, 1), 1.6),  # 79
    Part.Circle(App.Vector(14.2, -40.8, 0), App.Vector(0, 0, 1), 2.8),  # 80
    Part.Circle(App.Vector(14.2, -54.2, 0), App.Vector(0, 0, 1), 1.6),  # 81
    Part.Circle(App.Vector(28.4, -40.8, 0), App.Vector(0, 0, 1), 2.8),  # 82
    Part.Circle(App.Vector(42.6, -40.8, 0), App.Vector(0, 0, 1), 2.8),  # 83
    Part.Circle(App.Vector(54.6, -40.8, 0), App.Vector(0, 0, 1), 1.6),  # 84
    Part.Circle(App.Vector(28.4, -54.2, 0), App.Vector(0, 0, 1), 1.6),  # 85
    Part.Circle(App.Vector(42.6, -54.2, 0), App.Vector(0, 0, 1), 1.6),  # 86
    Part.Circle(App.Vector(54.6, -54.2, 0), App.Vector(0, 0, 1), 1.6),  # 87
], False)
sketch6.addConstraint([
    Sketcher.Constraint("Tangent", 0, 2, 1, 2),
    Sketcher.Constraint("Tangent", 1, 1, 2, 1),
    Sketcher.Constraint("Coincident", 2, 2, 3, 1),
    Sketcher.Constraint("Coincident", 3, 2, 4, 1),
    Sketcher.Constraint("Coincident", 4, 2, 5, 1),
    Sketcher.Constraint("Coincident", 5, 2, 6, 1),
    Sketcher.Constraint("Tangent", 6, 2, 7, 2),
    Sketcher.Constraint("Tangent", 7, 1, 8, 1),
    Sketcher.Constraint("Coincident", 8, 2, 9, 1),
    Sketcher.Constraint("Coincident", 9, 2, 10, 1),
    Sketcher.Constraint("Coincident", 10, 2, 11, 1),
    Sketcher.Constraint("Coincident", 11, 2, 12, 1),
    Sketcher.Constraint("Tangent", 12, 2, 13, 2),
    Sketcher.Constraint("Tangent", 13, 1, 14, 1),
    Sketcher.Constraint("Coincident", 14, 2, 15, 1),
    Sketcher.Constraint("Coincident", 15, 2, 16, 1),
    Sketcher.Constraint("Coincident", 16, 2, 17, 1),
    Sketcher.Constraint("Coincident", 17, 2, 18, 1),
    Sketcher.Constraint("Tangent", 18, 2, 19, 2),
    Sketcher.Constraint("Tangent", 19, 1, 20, 1),
    Sketcher.Constraint("Coincident", 20, 2, 21, 1),
    Sketcher.Constraint("Coincident", 21, 2, 22, 1),
    Sketcher.Constraint("Coincident", 22, 2, 23, 1),
    Sketcher.Constraint("Coincident", 23, 2, 0, 1),
    Sketcher.Constraint("Horizontal", 0),
    Sketcher.Constraint("Vertical", 2),
    Sketcher.Constraint("Horizontal", 3),
    Sketcher.Constraint("Vertical", 4),
    Sketcher.Constraint("Horizontal", 5),
    Sketcher.Constraint("Vertical", 6),
    Sketcher.Constraint("Horizontal", 8),
    Sketcher.Constraint("Vertical", 9),
    Sketcher.Constraint("Horizontal", 10),
    Sketcher.Constraint("Vertical", 11),
    Sketcher.Constraint("Horizontal", 12),
    Sketcher.Constraint("Vertical", 14),
    Sketcher.Constraint("Horizontal", 15),
    Sketcher.Constraint("Vertical", 16),
    Sketcher.Constraint("Horizontal", 17),
    Sketcher.Constraint("Vertical", 18),
    Sketcher.Constraint("Horizontal", 20),
    Sketcher.Constraint("Vertical", 21),
    Sketcher.Constraint("Horizontal", 22),
    Sketcher.Constraint("Vertical", 23),
    Sketcher.Constraint("Equal", 1, 7),
    Sketcher.Constraint("Equal", 7, 13),
    Sketcher.Constraint("Equal", 13, 19),
    Sketcher.Constraint("Equal", 24, 25),
    Sketcher.Constraint("Equal", 25, 26),
    Sketcher.Constraint("Equal", 26, 27),
    Sketcher.Constraint("Equal", 28, 29),
    Sketcher.Constraint("Equal", 27, 30),
    Sketcher.Constraint("Equal", 29, 31),
    Sketcher.Constraint("Equal", 30, 32),
    Sketcher.Constraint("Equal", 31, 33),
    Sketcher.Constraint("Equal", 33, 34),
    Sketcher.Constraint("Equal", 32, 35),
    Sketcher.Constraint("Equal", 34, 36),
    Sketcher.Constraint("Equal", 36, 37),
    Sketcher.Constraint("Equal", 37, 38),
    Sketcher.Constraint("Equal", 38, 39),
    Sketcher.Constraint("Equal", 35, 40),
    Sketcher.Constraint("Equal", 39, 41),
    Sketcher.Constraint("Equal", 40, 42),
    Sketcher.Constraint("Equal", 42, 43),
    Sketcher.Constraint("Equal", 43, 44),
    Sketcher.Constraint("Equal", 41, 45),
    Sketcher.Constraint("Equal", 45, 46),
    Sketcher.Constraint("Equal", 44, 47),
    Sketcher.Constraint("Equal", 46, 48),
    Sketcher.Constraint("Equal", 48, 49),
    Sketcher.Constraint("Equal", 49, 50),
    Sketcher.Constraint("Equal", 50, 51),
    Sketcher.Constraint("Equal", 47, 52),
    Sketcher.Constraint("Equal", 51, 53),
    Sketcher.Constraint("Equal", 53, 54),
    Sketcher.Constraint("Equal", 52, 55),
    Sketcher.Constraint("Equal", 55, 56),
    Sketcher.Constraint("Equal", 54, 57),
    Sketcher.Constraint("Equal", 57, 58),
    Sketcher.Constraint("Equal", 56, 59),
    Sketcher.Constraint("Equal", 58, 60),
    Sketcher.Constraint("Equal", 60, 61),
    Sketcher.Constraint("Equal", 61, 62),
    Sketcher.Constraint("Equal", 62, 63),
    Sketcher.Constraint("Equal", 59, 64),
    Sketcher.Constraint("Equal", 63, 65),
    Sketcher.Constraint("Equal", 65, 66),
    Sketcher.Constraint("Equal", 64, 67),
    Sketcher.Constraint("Equal", 67, 68),
    Sketcher.Constraint("Equal", 68, 69),
    Sketcher.Constraint("Equal", 66, 70),
    Sketcher.Constraint("Equal", 69, 71),
    Sketcher.Constraint("Equal", 70, 72),
    Sketcher.Constraint("Equal", 72, 73),
    Sketcher.Constraint("Equal", 73, 74),
    Sketcher.Constraint("Equal", 74, 75),
    Sketcher.Constraint("Equal", 71, 76),
    Sketcher.Constraint("Equal", 75, 77),
    Sketcher.Constraint("Equal", 77, 78),
    Sketcher.Constraint("Equal", 76, 79),
    Sketcher.Constraint("Equal", 78, 80),
    Sketcher.Constraint("Equal", 79, 81),
    Sketcher.Constraint("Equal", 80, 82),
    Sketcher.Constraint("Equal", 82, 83),
    Sketcher.Constraint("Equal", 81, 84),
    Sketcher.Constraint("Equal", 84, 85),
    Sketcher.Constraint("Equal", 85, 86),
    Sketcher.Constraint("Equal", 86, 87),
    Sketcher.Constraint("Symmetric", 1, 3, 13, 3, -1, 1),
    Sketcher.Constraint("Symmetric", 7, 3, 19, 3, -1, 1),
    Sketcher.Constraint("Symmetric", 55, 3, 56, 3, -1, 1),
    Sketcher.Constraint("Symmetric", 54, 3, 57, 3, -1, 1),
    Sketcher.Constraint("Symmetric", 53, 3, 58, 3, -1, 1),
    Sketcher.Constraint("Symmetric", 52, 3, 59, 3, -1, 1),
    Sketcher.Constraint("Symmetric", 51, 3, 60, 3, -1, 1),
    Sketcher.Constraint("Symmetric", 50, 3, 61, 3, -1, 1),
    Sketcher.Constraint("Symmetric", 49, 3, 62, 3, -1, 1),
    Sketcher.Constraint("Symmetric", 48, 3, 63, 3, -1, 1),
    Sketcher.Constraint("Symmetric", 47, 3, 64, 3, -1, 1),
    Sketcher.Constraint("Symmetric", 46, 3, 65, 3, -1, 1),
    Sketcher.Constraint("Symmetric", 45, 3, 66, 3, -1, 1),
    Sketcher.Constraint("Symmetric", 44, 3, 67, 3, -1, 1),
    Sketcher.Constraint("Symmetric", 43, 3, 68, 3, -1, 1),
    Sketcher.Constraint("Symmetric", 42, 3, 69, 3, -1, 1),
    Sketcher.Constraint("Symmetric", 41, 3, 70, 3, -1, 1),
    Sketcher.Constraint("Symmetric", 40, 3, 71, 3, -1, 1),
    Sketcher.Constraint("Symmetric", 39, 3, 72, 3, -1, 1),
    Sketcher.Constraint("Symmetric", 38, 3, 73, 3, -1, 1),
    Sketcher.Constraint("Symmetric", 37, 3, 74, 3, -1, 1),
    Sketcher.Constraint("Symmetric", 36, 3, 75, 3, -1, 1),
    Sketcher.Constraint("Symmetric", 35, 3, 76, 3, -1, 1),
    Sketcher.Constraint("Symmetric", 34, 3, 77, 3, -1, 1),
    Sketcher.Constraint("Symmetric", 33, 3, 78, 3, -1, 1),
    Sketcher.Constraint("Symmetric", 32, 3, 79, 3, -1, 1),
    Sketcher.Constraint("Symmetric", 31, 3, 80, 3, -1, 1),
    Sketcher.Constraint("Symmetric", 30, 3, 81, 3, -1, 1),
    Sketcher.Constraint("Symmetric", 29, 3, 82, 3, -1, 1),
    Sketcher.Constraint("Symmetric", 28, 3, 83, 3, -1, 1),
    Sketcher.Constraint("Symmetric", 27, 3, 84, 3, -1, 1),
    Sketcher.Constraint("Symmetric", 26, 3, 85, 3, -1, 1),
    Sketcher.Constraint("Symmetric", 25, 3, 86, 3, -1, 1),
    Sketcher.Constraint("Symmetric", 24, 3, 87, 3, -1, 1),
    Sketcher.Constraint("Symmetric", 3, 2, 15, 2, -1, 1),
    Sketcher.Constraint("Symmetric", 9, 2, 21, 2, -1, 1),
    Sketcher.Constraint("Symmetric", 7, 3, 13, 3, -2),
    Sketcher.Constraint("Symmetric", 30, 3, 40, 3, -2),
    Sketcher.Constraint("Symmetric", 31, 3, 41, 3, -2),
    Sketcher.Constraint("Symmetric", 26, 3, 42, 3, -2),
    Sketcher.Constraint("Symmetric", 25, 3, 43, 3, -2),
    Sketcher.Constraint("Symmetric", 24, 3, 44, 3, -2),
    Sketcher.Constraint("Symmetric", 29, 3, 45, 3, -2),
    Sketcher.Constraint("Symmetric", 28, 3, 46, 3, -2),
    Sketcher.Constraint("Symmetric", 27, 3, 47, 3, -2),
    Sketcher.Constraint("Symmetric", 38, 3, 48, 3, -2),
    Sketcher.Constraint("Symmetric", 39, 3, 49, 3, -2),
    Sketcher.Constraint("Symmetric", 34, 3, 50, 3, -2),
    Sketcher.Constraint("Symmetric", 33, 3, 51, 3, -2),
    Sketcher.Constraint("Symmetric", 32, 3, 52, 3, -2),
    Sketcher.Constraint("Symmetric", 37, 3, 53, 3, -2),
    Sketcher.Constraint("Symmetric", 36, 3, 54, 3, -2),
    Sketcher.Constraint("Symmetric", 35, 3, 55, 3, -2),
    Sketcher.Constraint("Horizontal", 24, 3, 25, 3),
    Sketcher.Constraint("Horizontal", 25, 3, 26, 3),
    Sketcher.Constraint("Horizontal", 27, 3, 28, 3),
    Sketcher.Constraint("Horizontal", 28, 3, 29, 3),
    Sketcher.Constraint("Horizontal", 26, 3, 30, 3),
    Sketcher.Constraint("Horizontal", 29, 3, 31, 3),
    Sketcher.Constraint("Horizontal", 32, 3, 33, 3),
    Sketcher.Constraint("Horizontal", 33, 3, 34, 3),
    Sketcher.Constraint("Horizontal", 35, 3, 36, 3),
    Sketcher.Constraint("Horizontal", 36, 3, 37, 3),
    Sketcher.Constraint("Horizontal", 34, 3, 38, 3),
    Sketcher.Constraint("Horizontal", 37, 3, 39, 3),
    Sketcher.Constraint("Horizontal", 5, 2, 14, 2),
    Sketcher.Constraint("Horizontal", 3, 2, 16, 2),
    Sketcher.Constraint("Vertical", 24, 3, 27, 3),
    Sketcher.Constraint("Vertical", 25, 3, 28, 3),
    Sketcher.Constraint("Vertical", 26, 3, 29, 3),
    Sketcher.Constraint("Vertical", 30, 3, 31, 3),
    Sketcher.Constraint("Vertical", 27, 3, 32, 3),
    Sketcher.Constraint("Vertical", 28, 3, 33, 3),
    Sketcher.Constraint("Vertical", 29, 3, 34, 3),
    Sketcher.Constraint("Vertical", 32, 3, 35, 3),
    Sketcher.Constraint("Vertical", 33, 3, 36, 3),
    Sketcher.Constraint("Vertical", 34, 3, 37, 3),
    Sketcher.Constraint("Vertical", 31, 3, 38, 3),
    Sketcher.Constraint("Vertical", 38, 3, 39, 3),
    Sketcher.Constraint("Vertical", 11, 2, 20, 2),
    Sketcher.Constraint("Vertical", 9, 2, 22, 2),
    Sketcher.Constraint("Equal", 17, 9),
    Sketcher.Constraint("Diameter", 24, Q("3.3 mm")),
    Sketcher.Constraint("Diameter", 28, Q("5.5 mm")),
    Sketcher.Constraint("Radius", 1, Q("1.5 mm")),
    Sketcher.Constraint("DistanceX", 3, 2, 3, 1, Q("5 mm")),
    Sketcher.Constraint("DistanceX", 10, 2, 10, 1, Q("15 mm")),
    Sketcher.Constraint("DistanceY", 4, 2, 4, 1, Q("10 mm")),
    Sketcher.Constraint("DistanceY", 2, 2, 2, 1, Q("51.2 mm")),
    Sketcher.Constraint("DistanceY", -1, 1, 24, 3, Q("54.2 mm")),
    Sketcher.Constraint("DistanceX", 25, 3, -1, 1, Q("42.6 mm")),
    Sketcher.Constraint("DistanceX", 26, 3, -1, 1, Q("28.4 mm")),
    Sketcher.Constraint("DistanceX", 30, 3, -1, 1, Q("14.2 mm")),
    Sketcher.Constraint("DistanceX", 0, 1, 0, 2, Q("49.125 mm")),
    Sketcher.Constraint("DistanceX", 24, 3, -1, 1, Q("54.65 mm")),
    Sketcher.Constraint("DistanceY", -1, 1, 27, 3, Q("40.75 mm")),
    Sketcher.Constraint("DistanceY", -1, 1, 32, 3, Q("25.55 mm")),
    Sketcher.Constraint("DistanceY", -1, 1, 35, 3, Q("10.35 mm")),
])
pocket1 = body.newObject("PartDesign::Pocket", "Pocket")
pocket1.Profile = sketch6
pocket1.Length = 0.5
pocket1.Reversed = True
doc.recompute()

chamfer = body.newObject("PartDesign::Chamfer", "Chamfer")
chamfer.Base = (pocket1, edges_at(pocket1, [
    (-105, 120, 3.75),
    (105, 120, 3.75),
    (-105, -120, 3.75),
    (105, -120, 3.75),
]))
chamfer.Size = 5
doc.recompute()

fillet = body.newObject("PartDesign::Fillet", "Fillet")
fillet.Base = (chamfer, edges_at(chamfer, [
    (7.5, 57.7, 0.25),
    (-7.5, 57.7, 0.25),
    (58.125, -5, 0.25),
    (58.125, 5, 0.25),
    (7.5, -57.7, 0.25),
    (-7.5, -57.7, 0.25),
    (-58.125, -5, 0.25),
    (-58.125, 5, 0.25),
]))
fillet.Radius = 1.5

doc.recompute()
